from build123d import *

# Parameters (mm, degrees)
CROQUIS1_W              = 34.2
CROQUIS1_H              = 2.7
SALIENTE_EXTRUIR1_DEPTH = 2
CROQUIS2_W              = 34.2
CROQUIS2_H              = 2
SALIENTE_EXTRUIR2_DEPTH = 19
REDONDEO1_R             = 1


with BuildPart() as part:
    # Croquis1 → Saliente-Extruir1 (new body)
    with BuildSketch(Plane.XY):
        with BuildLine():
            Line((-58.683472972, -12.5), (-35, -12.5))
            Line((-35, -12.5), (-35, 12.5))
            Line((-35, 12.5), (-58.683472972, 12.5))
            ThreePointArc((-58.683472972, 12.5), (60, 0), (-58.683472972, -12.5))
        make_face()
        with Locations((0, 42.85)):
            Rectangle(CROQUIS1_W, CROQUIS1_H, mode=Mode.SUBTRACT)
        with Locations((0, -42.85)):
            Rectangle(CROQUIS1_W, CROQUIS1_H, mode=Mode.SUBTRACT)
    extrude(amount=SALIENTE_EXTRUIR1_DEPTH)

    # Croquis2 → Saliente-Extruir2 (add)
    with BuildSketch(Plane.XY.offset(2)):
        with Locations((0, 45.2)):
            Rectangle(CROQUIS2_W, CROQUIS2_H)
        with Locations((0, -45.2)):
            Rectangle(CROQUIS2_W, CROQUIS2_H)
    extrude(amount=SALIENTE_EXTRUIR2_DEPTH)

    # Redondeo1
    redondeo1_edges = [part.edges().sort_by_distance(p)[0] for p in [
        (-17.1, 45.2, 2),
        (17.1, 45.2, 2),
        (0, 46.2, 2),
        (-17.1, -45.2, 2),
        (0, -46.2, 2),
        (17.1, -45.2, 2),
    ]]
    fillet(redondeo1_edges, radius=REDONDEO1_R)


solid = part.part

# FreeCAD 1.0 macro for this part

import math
import FreeCAD as App
import Part
import Sketcher


def edges_at(feature, points):
    """Names of the edges that pass closest to the given points."""
    edges = feature.Shape.Edges
    near = lambda p: min(range(len(edges)), key=lambda i: edges[i].distToShape(Part.Vertex(*p))[0])
    return sorted({f"Edge{near(p) + 1}" for p in points})


def add_polygon(sketch, points):
    """Adds a closed chain of lines whose ends are joined by coincident constraints."""
    first, n = sketch.GeometryCount, len(points)
    for a, b in zip(points, points[1:] + points[:1]):
        sketch.addGeometry(Part.LineSegment(App.Vector(*a, 0), App.Vector(*b, 0)), False)
    for i in range(n):
        sketch.addConstraint(Sketcher.Constraint("Coincident", first + i, 2, first + (i + 1) % n, 1))

doc = App.newDocument("Part")
body = doc.addObject("PartDesign::Body", "Body")

# Sketch on XY plane
sketch1 = body.newObject("Sketcher::SketchObject", "Sketch")
sketch1.AttachmentSupport = (doc.getObject("XY_Plane"), [""])
sketch1.MapMode = "FlatFace"
sketch1.addGeometry(Part.LineSegment(App.Vector(-35, -12.5, 0), App.Vector(-58.7, -12.5, 0)), False)  # 0
sketch1.addGeometry(Part.ArcOfCircle(Part.Circle(App.Vector(0, 0, 0), App.Vector(0, 0, 1), 60), math.radians(-168), math.radians(168)), False)  # 1
sketch1.addGeometry(Part.LineSegment(App.Vector(-58.7, 12.5, 0), App.Vector(-35, 12.5, 0)), False)  # 2
sketch1.addGeometry(Part.LineSegment(App.Vector(-35, 12.5, 0), App.Vector(-35, -12.5, 0)), False)  # 3
add_polygon(sketch1, [(-17.1, -44.2), (-17.1, -41.5), (17.1, -41.5), (17.1, -44.2)])  # lines 4-7
add_polygon(sketch1, [(-17.1, 41.5), (-17.1, 44.2), (17.1, 44.2), (17.1, 41.5)])  # lines 8-11
sketch1.addConstraint([
    Sketcher.Constraint("Coincident", 0, 2, 1, 1),
    Sketcher.Constraint("Coincident", 1, 2, 2, 1),
    Sketcher.Constraint("Coincident", 2, 2, 3, 1),
    Sketcher.Constraint("Coincident", 3, 2, 0, 1),
    Sketcher.Constraint("Horizontal", 0),
    Sketcher.Constraint("Horizontal", 2),
    Sketcher.Constraint("Vertical", 3),
    Sketcher.Constraint("Vertical", 4),
    Sketcher.Constraint("Horizontal", 5),
    Sketcher.Constraint("Vertical", 6),
    Sketcher.Constraint("Horizontal", 7),
    Sketcher.Constraint("Vertical", 8),
    Sketcher.Constraint("Horizontal", 9),
    Sketcher.Constraint("Vertical", 10),
    Sketcher.Constraint("Horizontal", 11),
    Sketcher.Constraint("Coincident", 1, 3, -1, 1),
    Sketcher.Constraint("Symmetric", 6, 2, 8, 2, -1, 1),
    Sketcher.Constraint("Symmetric", 4, 2, 10, 2, -1, 1),
    Sketcher.Constraint("Vertical", 0, 2, 1, 2),
    Sketcher.Constraint("Vertical", 7, 2, 8, 2),
    Sketcher.Constraint("Radius", 1, 60.0),
    Sketcher.Constraint("DistanceY", 3, 2, 3, 1, 25.0),
    Sketcher.Constraint("DistanceX", 5, 1, 5, 2, 34.2),
    Sketcher.Constraint("DistanceY", 4, 1, 4, 2, 2.7),
    Sketcher.Constraint("DistanceX", 2, 2, -1, 1, 35.0),
    Sketcher.Constraint("DistanceY", 4, 2, 3, 2, 29.0),
])
pad1 = body.newObject("PartDesign::Pad", "Pad")
pad1.Profile = sketch1
pad1.Length = 2

# Sketch on XY plane
sketch2 = body.newObject("Sketcher::SketchObject", "Sketch001")
sketch2.AttachmentSupport = (doc.getObject("XY_Plane"), [""])
sketch2.MapMode = "FlatFace"
sketch2.AttachmentOffset = App.Placement(App.Vector(0, 0, 2), App.Rotation())
add_polygon(sketch2, [(-17.1, 46.2), (-17.1, 44.2), (17.1, 44.2), (17.1, 46.2)])  # lines 0-3
add_polygon(sketch2, [(-17.1, -44.2), (-17.1, -46.2), (17.1, -46.2), (17.1, -44.2)])  # lines 4-7
sketch2.addConstraint([
    Sketcher.Constraint("Vertical", 0),
    Sketcher.Constraint("Horizontal", 1),
    Sketcher.Constraint("Vertical", 2),
    Sketcher.Constraint("Horizontal", 3),
    Sketcher.Constraint("Vertical", 4),
    Sketcher.Constraint("Horizontal", 5),
    Sketcher.Constraint("Vertical", 6),
    Sketcher.Constraint("Horizontal", 7),
    Sketcher.Constraint("Symmetric", 2, 2, 4, 2, -1, 1),
    Sketcher.Constraint("Symmetric", 0, 2, 6, 2, -1, 1),
    Sketcher.Constraint("Vertical", 3, 2, 4, 2),
    Sketcher.Constraint("DistanceY", 0, 2, 0, 1, 2.0),
    Sketcher.Constraint("DistanceX", 1, 1, 1, 2, 34.2),
    Sketcher.Constraint("DistanceY", -1, 1, 0, 2, 44.2),
])
pad2 = body.newObject("PartDesign::Pad", "Pad001")
pad2.Profile = sketch2
pad2.Length = 19
doc.recompute()

fillet = body.newObject("PartDesign::Fillet", "Fillet")
fillet.Base = (pad2, edges_at(pad2, [
    (-17.1, 45.2, 2),
    (17.1, 45.2, 2),
    (0, 46.2, 2),
    (-17.1, -45.2, 2),
    (0, -46.2, 2),
    (17.1, -45.2, 2),
]))
fillet.Radius = 1

doc.recompute()
